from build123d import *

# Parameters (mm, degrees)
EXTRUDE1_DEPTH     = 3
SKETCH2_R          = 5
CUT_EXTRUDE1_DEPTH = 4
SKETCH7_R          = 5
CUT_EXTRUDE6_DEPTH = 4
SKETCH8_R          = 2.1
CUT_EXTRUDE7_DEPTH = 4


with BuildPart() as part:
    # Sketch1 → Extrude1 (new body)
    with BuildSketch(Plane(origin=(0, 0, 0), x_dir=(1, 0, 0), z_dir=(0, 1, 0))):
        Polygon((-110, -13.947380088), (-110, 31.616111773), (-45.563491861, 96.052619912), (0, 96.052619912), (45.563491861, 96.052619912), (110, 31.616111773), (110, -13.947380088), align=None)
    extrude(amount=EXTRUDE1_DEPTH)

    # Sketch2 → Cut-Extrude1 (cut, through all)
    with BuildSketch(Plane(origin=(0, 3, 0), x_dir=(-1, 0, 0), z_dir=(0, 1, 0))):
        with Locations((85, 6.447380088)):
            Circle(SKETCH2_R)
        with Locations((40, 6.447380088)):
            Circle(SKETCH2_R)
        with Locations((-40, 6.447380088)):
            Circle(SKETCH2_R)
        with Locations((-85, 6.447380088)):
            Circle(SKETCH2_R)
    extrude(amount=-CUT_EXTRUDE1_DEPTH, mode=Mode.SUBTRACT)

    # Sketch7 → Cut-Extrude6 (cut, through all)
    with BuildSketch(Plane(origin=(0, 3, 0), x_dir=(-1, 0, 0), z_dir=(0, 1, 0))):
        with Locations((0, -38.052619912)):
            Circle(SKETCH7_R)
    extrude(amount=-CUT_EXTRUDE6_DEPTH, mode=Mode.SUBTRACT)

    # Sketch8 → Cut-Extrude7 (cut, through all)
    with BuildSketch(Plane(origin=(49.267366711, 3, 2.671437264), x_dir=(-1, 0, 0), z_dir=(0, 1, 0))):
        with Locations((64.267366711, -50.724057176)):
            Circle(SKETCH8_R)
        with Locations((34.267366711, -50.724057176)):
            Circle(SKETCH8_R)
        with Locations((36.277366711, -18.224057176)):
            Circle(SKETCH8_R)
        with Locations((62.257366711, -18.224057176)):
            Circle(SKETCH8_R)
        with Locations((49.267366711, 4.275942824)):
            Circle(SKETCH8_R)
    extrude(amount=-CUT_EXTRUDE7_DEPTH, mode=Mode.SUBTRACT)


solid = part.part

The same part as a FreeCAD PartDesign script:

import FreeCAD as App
import Part
import Sketcher
from FreeCAD import Vector
Q = App.Units.Quantity

doc = App.newDocument("Part")
body = doc.addObject("PartDesign::Body", "Body")

sketch1 = doc.addObject("Sketcher::SketchObject", "Sketch")
body.addObject(sketch1)
sketch1.AttachmentSupport = (doc.XZ_Plane, [""])
sketch1.MapMode = "FlatFace"
sketch1.addGeometry([
    Part.LineSegment(Vector(-110, -32, 0), Vector(-110, 14, 0)),
    Part.LineSegment(Vector(-110, 14, 0), Vector(110, 14, 0)),
    Part.LineSegment(Vector(110, 14, 0), Vector(110, -32, 0)),
    Part.LineSegment(Vector(110, -32, 0), Vector(46, -96, 0)),
    Part.LineSegment(Vector(46, -96, 0), Vector(-46, -96, 0)),
    Part.LineSegment(Vector(-46, -96, 0), Vector(-110, -32, 0)),
], False)
sketch1.addConstraint([
    Sketcher.Constraint("Coincident", 0, 2, 1, 1),
    Sketcher.Constraint("Coincident", 1, 2, 2, 1),
    Sketcher.Constraint("Coincident", 2, 2, 3, 1),
    Sketcher.Constraint("Coincident", 3, 2, 4, 1),
    Sketcher.Constraint("Coincident", 4, 2, 5, 1),
    Sketcher.Constraint("Coincident", 5, 2, 0, 1),
    Sketcher.Constraint("Vertical", 0),
    Sketcher.Constraint("Horizontal", 1),
    Sketcher.Constraint("Vertical", 2),
    Sketcher.Constraint("Horizontal", 4),
    Sketcher.Constraint("Symmetric", 2, 2, 5, 2, -2),
    Sketcher.Constraint("Perpendicular", 3, 5),
    Sketcher.Constraint("Equal", 3, 5),
    Sketcher.Constraint("DistanceX", 1, 1, 1, 2, Q("220 mm")),
    Sketcher.Constraint("DistanceY", 3, 2, 1, 2, Q("110 mm")),
    Sketcher.Constraint("DistanceY", 0, 1, 0, 2, Q("45.563492 mm")),
    Sketcher.Constraint("DistanceY", -1, 1, 0, 2, Q("13.94738 mm")),
])
pad1 = doc.addObject("PartDesign::Pad", "Pad")
body.addObject(pad1)
pad1.Profile = sketch1
pad1.Length = 3
pad1.Reversed = True

sketch2 = doc.addObject("Sketcher::SketchObject", "Sketch001")
body.addObject(sketch2)
sketch2.AttachmentSupport = (doc.XZ_Plane, [""])
sketch2.MapMode = "FlatFace"
sketch2.AttachmentOffset = App.Placement(Vector(0, 0, -3), App.Rotation())
sketch2.addGeometry([
    Part.Circle(Vector(-85, 6, 0), Vector(0, 0, 1), 5),
    Part.Circle(Vector(-40, 6, 0), Vector(0, 0, 1), 5),
    Part.Circle(Vector(40, 6, 0), Vector(0, 0, 1), 5),
    Part.Circle(Vector(85, 6, 0), Vector(0, 0, 1), 5),
], False)
sketch2.addConstraint([
    Sketcher.Constraint("Equal", 0, 1),
    Sketcher.Constraint("Equal", 1, 2),
    Sketcher.Constraint("Equal", 2, 3),
    Sketcher.Constraint("Symmetric", 1, 3, 2, 3, -2),
    Sketcher.Constraint("Symmetric", 0, 3, 3, 3, -2),
    Sketcher.Constraint("Horizontal", 0, 3, 1, 3),
    Sketcher.Constraint("Diameter", 0, Q("10 mm")),
    Sketcher.Constraint("DistanceX", 0, 3, -1, 1, Q("85 mm")),
    Sketcher.Constraint("DistanceX", 1, 3, -1, 1, Q("40 mm")),
    Sketcher.Constraint("DistanceY", -1, 1, 0, 3, Q("6.44738 mm")),
])
pocket1 = doc.addObject("PartDesign::Pocket", "Pocket")
body.addObject(pocket1)
pocket1.Profile = sketch2
pocket1.Type = "ThroughAll"
pocket1.Reversed = True

sketch3 = doc.addObject("Sketcher::SketchObject", "Sketch002")
body.addObject(sketch3)
sketch3.AttachmentSupport = (doc.XZ_Plane, [""])
sketch3.MapMode = "FlatFace"
sketch3.AttachmentOffset = App.Placement(Vector(0, 0, -3), App.Rotation())
sketch3.addGeometry(Part.Circle(Vector(0, -38, 0), Vector(0, 0, 1), 5), False)
sketch3.addConstraint([
    Sketcher.Constraint("PointOnObject", 0, 3, -2),
    Sketcher.Constraint("Diameter", 0, Q("10 mm")),
    Sketcher.Constraint("DistanceY", 0, 3, -1, 1, Q("38.05262 mm")),
])
pocket2 = doc.addObject("PartDesign::Pocket", "Pocket001")
body.addObject(pocket2)
pocket2.Profile = sketch3
pocket2.Type = "ThroughAll"
pocket2.Reversed = True

sketch4 = doc.addObject("Sketcher::SketchObject", "Sketch003")
body.addObject(sketch4)
sketch4.AttachmentSupport = (doc.XZ_Plane, [""])
sketch4.MapMode = "FlatFace"
sketch4.AttachmentOffset = App.Placement(Vector(0, 0, -3), App.Rotation())
sketch4.addGeometry([
    Part.Circle(Vector(-15, -48.1, 0), Vector(0, 0, 1), 2.1),
    Part.Circle(Vector(15, -48.1, 0), Vector(0, 0, 1), 2.1),
    Part.Circle(Vector(13, -15.6, 0), Vector(0, 0, 1), 2.1),
    Part.Circle(Vector(-13, -15.6, 0), Vector(0, 0, 1), 2.1),
    Part.Circle(Vector(0, 6.9, 0), Vector(0, 0, 1), 2.1),
], False)
sketch4.addConstraint([
    Sketcher.Constraint("Equal", 0, 1),
    Sketcher.Constraint("Equal", 1, 2),
    Sketcher.Constraint("Equal", 2, 3),
    Sketcher.Constraint("Equal", 3, 4),
    Sketcher.Constraint("Symmetric", 0, 3, 1, 3, -2),
    Sketcher.Constraint("Symmetric", 2, 3, 3, 3, -2),
    Sketcher.Constraint("PointOnObject", 4, 3, -2),
    Sketcher.Constraint("Diameter", 0, Q("4.2 mm")),
    Sketcher.Constraint("DistanceX", 0, 3, -1, 1, Q("15 mm")),
    Sketcher.Constraint("DistanceY", 0, 3, 4, 3, Q("55 mm")),
    Sketcher.Constraint("DistanceY", 1, 3, 2, 3, Q("32.5 mm")),
    Sketcher.Constraint("DistanceX", -1, 1, 2, 3, Q("12.99 mm")),
    Sketcher.Constraint("DistanceY", 0, 3, -1, 1, Q("48.05262 mm")),
])
pocket3 = doc.addObject("PartDesign::Pocket", "Pocket002")
body.addObject(pocket3)
pocket3.Profile = sketch4
pocket3.Type = "ThroughAll"
pocket3.Reversed = True

doc.recompute()
